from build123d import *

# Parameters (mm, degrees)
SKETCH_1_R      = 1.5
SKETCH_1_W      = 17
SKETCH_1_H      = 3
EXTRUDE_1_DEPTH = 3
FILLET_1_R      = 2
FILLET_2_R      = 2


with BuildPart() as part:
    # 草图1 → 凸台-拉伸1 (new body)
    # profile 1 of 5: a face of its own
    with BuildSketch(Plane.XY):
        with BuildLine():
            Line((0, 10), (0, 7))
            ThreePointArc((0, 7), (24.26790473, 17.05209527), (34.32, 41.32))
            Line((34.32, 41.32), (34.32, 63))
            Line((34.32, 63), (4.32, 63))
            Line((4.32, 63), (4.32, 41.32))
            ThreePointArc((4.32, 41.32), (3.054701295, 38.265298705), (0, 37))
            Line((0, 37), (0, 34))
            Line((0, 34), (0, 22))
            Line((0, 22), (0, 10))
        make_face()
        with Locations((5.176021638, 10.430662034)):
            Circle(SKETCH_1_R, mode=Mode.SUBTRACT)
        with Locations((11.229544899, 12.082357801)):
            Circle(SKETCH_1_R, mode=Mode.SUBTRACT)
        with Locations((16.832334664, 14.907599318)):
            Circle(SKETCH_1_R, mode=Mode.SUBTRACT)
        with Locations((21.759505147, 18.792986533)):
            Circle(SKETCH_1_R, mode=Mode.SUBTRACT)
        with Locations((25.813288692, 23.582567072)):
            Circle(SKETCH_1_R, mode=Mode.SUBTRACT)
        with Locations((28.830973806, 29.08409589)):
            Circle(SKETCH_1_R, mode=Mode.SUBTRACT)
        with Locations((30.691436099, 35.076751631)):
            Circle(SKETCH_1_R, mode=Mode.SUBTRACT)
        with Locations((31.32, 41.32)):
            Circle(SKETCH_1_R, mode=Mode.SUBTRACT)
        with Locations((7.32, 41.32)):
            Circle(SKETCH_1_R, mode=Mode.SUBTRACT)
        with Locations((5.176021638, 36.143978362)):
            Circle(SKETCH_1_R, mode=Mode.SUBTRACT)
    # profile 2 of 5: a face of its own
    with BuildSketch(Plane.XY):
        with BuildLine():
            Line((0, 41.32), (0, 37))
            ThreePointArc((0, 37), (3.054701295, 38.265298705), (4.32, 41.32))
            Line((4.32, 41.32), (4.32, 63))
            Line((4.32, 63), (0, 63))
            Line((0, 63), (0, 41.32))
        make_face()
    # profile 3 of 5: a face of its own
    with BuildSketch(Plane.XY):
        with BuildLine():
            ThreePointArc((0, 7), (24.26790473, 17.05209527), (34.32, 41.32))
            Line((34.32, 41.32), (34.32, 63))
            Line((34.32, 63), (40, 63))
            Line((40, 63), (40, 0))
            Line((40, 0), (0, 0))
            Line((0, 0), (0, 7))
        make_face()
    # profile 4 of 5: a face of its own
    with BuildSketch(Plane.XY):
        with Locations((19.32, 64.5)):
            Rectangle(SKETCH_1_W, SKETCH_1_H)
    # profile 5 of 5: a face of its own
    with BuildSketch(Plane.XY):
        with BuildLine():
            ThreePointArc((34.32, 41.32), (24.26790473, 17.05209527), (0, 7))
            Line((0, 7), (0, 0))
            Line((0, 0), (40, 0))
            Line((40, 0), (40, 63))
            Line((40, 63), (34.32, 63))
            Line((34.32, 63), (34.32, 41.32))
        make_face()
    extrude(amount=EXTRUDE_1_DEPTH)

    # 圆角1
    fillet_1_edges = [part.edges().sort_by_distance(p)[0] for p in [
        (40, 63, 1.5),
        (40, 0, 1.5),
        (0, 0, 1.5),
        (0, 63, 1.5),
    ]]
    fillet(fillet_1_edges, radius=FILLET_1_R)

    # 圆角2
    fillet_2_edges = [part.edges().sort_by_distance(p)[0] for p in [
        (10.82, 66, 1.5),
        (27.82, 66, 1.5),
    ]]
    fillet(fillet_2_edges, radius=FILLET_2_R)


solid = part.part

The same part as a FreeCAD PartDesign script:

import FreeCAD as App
import Part
import Sketcher
from FreeCAD import Vector
Q = App.Units.Quantity


def edges_at(feature, points):
    """Names of the edges that pass closest to the given points."""
    edges = feature.Shape.Edges
    near = lambda p: min(range(len(edges)), key=lambda i: edges[i].distToShape(Part.Vertex(*p))[0])
    return sorted({f"Edge{near(p) + 1}" for p in points})

doc = App.newDocument("Part")
params = doc.addObject("Spreadsheet::Sheet", "Params")
for row, (alias, value) in enumerate([
    ("sketch1_diameter", "3 mm"),
    ("sketch1_width", "40 mm"),
    ("sketch1_width2", "17 mm"),
    ("sketch1_height", "63 mm"),
    ("sketch1_height2", "3 mm"),
    ("pad1_length", "3 mm"),
    ("fillet_radius", "2 mm"),
    ("fillet2_radius", "2 mm"),
], start=1):
    params.set(f"A{row}", alias)
    params.set(f"B{row}", "=" + value)
    params.setAlias(f"B{row}", alias)

body = doc.addObject("PartDesign::Body", "Body")

# Sketch on XY plane
sketch1 = body.newObject("Sketcher::SketchObject", "Sketch")
sketch1.AttachmentSupport = (doc.getObject("XY_Plane"), [""])
sketch1.MapMode = "FlatFace"
sketch1.addGeometry([
    Part.LineSegment(Vector(0, 0, 0), Vector(40, 0, 0)),  # 0
    Part.LineSegment(Vector(40, 0, 0), Vector(40, 63, 0)),  # 1
    Part.LineSegment(Vector(40, 63, 0), Vector(27.82, 63, 0)),  # 2
    Part.LineSegment(Vector(27.82, 63, 0), Vector(27.82, 66, 0)),  # 3
    Part.LineSegment(Vector(27.82, 66, 0), Vector(10.82, 66, 0)),  # 4
    Part.LineSegment(Vector(10.82, 66, 0), Vector(10.82, 63, 0)),  # 5
    Part.LineSegment(Vector(10.82, 63, 0), Vector(0, 63, 0)),  # 6
    Part.LineSegment(Vector(0, 63, 0), Vector(0, 0, 0)),  # 7
    Part.Circle(Vector(5.176022, 10.430662, 0), Vector(0, 0, 1), 1.5),  # 8
    Part.Circle(Vector(11.229545, 12.082358, 0), Vector(0, 0, 1), 1.5),  # 9
    Part.Circle(Vector(16.832335, 14.907599, 0), Vector(0, 0, 1), 1.5),  # 10
    Part.Circle(Vector(21.759505, 18.792987, 0), Vector(0, 0, 1), 1.5),  # 11
    Part.Circle(Vector(25.813289, 23.582567, 0), Vector(0, 0, 1), 1.5),  # 12
    Part.Circle(Vector(5.176022, 36.143978, 0), Vector(0, 0, 1), 1.5),  # 13
    Part.Circle(Vector(7.32, 41.32, 0), Vector(0, 0, 1), 1.5),  # 14
    Part.Circle(Vector(28.830974, 29.084096, 0), Vector(0, 0, 1), 1.5),  # 15
    Part.Circle(Vector(30.691436, 35.076752, 0), Vector(0, 0, 1), 1.5),  # 16
    Part.Circle(Vector(31.32, 41.32, 0), Vector(0, 0, 1), 1.5),  # 17
], False)
sketch1.addConstraint([
    Sketcher.Constraint("Coincident", 0, 2, 1, 1),
    Sketcher.Constraint("Coincident", 1, 2, 2, 1),
    Sketcher.Constraint("Coincident", 2, 2, 3, 1),
    Sketcher.Constraint("Coincident", 3, 2, 4, 1),
    Sketcher.Constraint("Coincident", 4, 2, 5, 1),
    Sketcher.Constraint("Coincident", 5, 2, 6, 1),
    Sketcher.Constraint("Coincident", 6, 2, 7, 1),
    Sketcher.Constraint("Coincident", 7, 2, 0, 1),
    Sketcher.Constraint("Horizontal", 0),
    Sketcher.Constraint("Vertical", 1),
    Sketcher.Constraint("Horizontal", 2),
    Sketcher.Constraint("Vertical", 3),
    Sketcher.Constraint("Horizontal", 4),
    Sketcher.Constraint("Vertical", 5),
    Sketcher.Constraint("Horizontal", 6),
    Sketcher.Constraint("Vertical", 7),
    Sketcher.Constraint("Coincident", 7, 2, -1, 1),
    Sketcher.Constraint("Equal", 8, 9),
    Sketcher.Constraint("Equal", 9, 10),
    Sketcher.Constraint("Equal", 10, 11),
    Sketcher.Constraint("Equal", 11, 12),
    Sketcher.Constraint("Equal", 12, 13),
    Sketcher.Constraint("Equal", 13, 14),
    Sketcher.Constraint("Equal", 14, 15),
    Sketcher.Constraint("Equal", 15, 16),
    Sketcher.Constraint("Equal", 16, 17),
    Sketcher.Constraint("Horizontal", 14, 3, 17, 3),
    Sketcher.Constraint("Horizontal", 2, 2, 5, 2),
    Sketcher.Constraint("Vertical", 8, 3, 13, 3),
    Sketcher.Constraint("Diameter", 8, Q("3 mm")),
    Sketcher.Constraint("DistanceX", 0, 1, 0, 2, Q("40 mm")),
    Sketcher.Constraint("DistanceX", 4, 2, 4, 1, Q("17 mm")),
    Sketcher.Constraint("DistanceY", 1, 1, 1, 2, Q("63 mm")),
    Sketcher.Constraint("DistanceY", 3, 1, 3, 2, Q("3 mm")),
    Sketcher.Constraint("DistanceX", 14, 3, 17, 3, Q("24 mm")),
    Sketcher.Constraint("DistanceX", 2, 2, 2, 1, Q("12.18 mm")),
    Sketcher.Constraint("DistanceX", 2, 2, 17, 3, Q("3.5 mm")),
    Sketcher.Constraint("DistanceY", -1, 1, 14, 3, Q("41.32 mm")),
    Sketcher.Constraint("DistanceY", -1, 1, 10, 3, Q("14.907599 mm")),
    Sketcher.Constraint("DistanceX", 10, 3, 16, 3, Q("13.859101 mm")),
    Sketcher.Constraint("DistanceX", -1, 1, 8, 3, Q("5.176022 mm")),
    Sketcher.Constraint("DistanceX", -1, 1, 12, 3, Q("25.813289 mm")),
    Sketcher.Constraint("DistanceY", -1, 1, 13, 3, Q("36.143978 mm")),
    Sketcher.Constraint("DistanceY", -1, 1, 16, 3, Q("35.076752 mm")),
    Sketcher.Constraint("DistanceX", 9, 3, 10, 3, Q("5.60279 mm")),
    Sketcher.Constraint("DistanceY", 9, 3, 10, 3, Q("2.825242 mm")),
    Sketcher.Constraint("DistanceX", 10, 3, 11, 3, Q("4.92717 mm")),
    Sketcher.Constraint("DistanceY", 9, 3, 11, 3, Q("6.710629 mm")),
    Sketcher.Constraint("DistanceY", 11, 3, 12, 3, Q("4.789581 mm")),
    Sketcher.Constraint("DistanceY", 12, 3, 15, 3, Q("5.501529 mm")),
    Sketcher.Constraint("DistanceX", 11, 3, 15, 3, Q("7.071469 mm")),
    Sketcher.Constraint("DistanceY", -1, 1, 8, 3, Q("10.430662 mm")),
    Sketcher.Constraint("DistanceX", -1, 1, 9, 3, Q("11.229545 mm")),
])
sketch1.setExpression("Constraints[29]", "Params.sketch1_diameter")
sketch1.setExpression("Constraints[30]", "Params.sketch1_width")
sketch1.setExpression("Constraints[31]", "Params.sketch1_width2")
sketch1.setExpression("Constraints[32]", "Params.sketch1_height")
sketch1.setExpression("Constraints[33]", "Params.sketch1_height2")
pad1 = body.newObject("PartDesign::Pad", "Pad")
pad1.Profile = sketch1
pad1.setExpression("Length", "Params.pad1_length")
doc.recompute()

fillet = body.newObject("PartDesign::Fillet", "Fillet")
fillet.Base = (pad1, edges_at(pad1, [
    (40, 63, 1.5),
    (40, 0, 1.5),
    (0, 0, 1.5),
    (0, 63, 1.5),
]))
fillet.setExpression("Radius", "Params.fillet_radius")
doc.recompute()

fillet2 = body.newObject("PartDesign::Fillet", "Fillet001")
fillet2.Base = (fillet, edges_at(fillet, [(10.82, 66, 1.5), (27.82, 66, 1.5)]))
fillet2.setExpression("Radius", "Params.fillet2_radius")

doc.recompute()
